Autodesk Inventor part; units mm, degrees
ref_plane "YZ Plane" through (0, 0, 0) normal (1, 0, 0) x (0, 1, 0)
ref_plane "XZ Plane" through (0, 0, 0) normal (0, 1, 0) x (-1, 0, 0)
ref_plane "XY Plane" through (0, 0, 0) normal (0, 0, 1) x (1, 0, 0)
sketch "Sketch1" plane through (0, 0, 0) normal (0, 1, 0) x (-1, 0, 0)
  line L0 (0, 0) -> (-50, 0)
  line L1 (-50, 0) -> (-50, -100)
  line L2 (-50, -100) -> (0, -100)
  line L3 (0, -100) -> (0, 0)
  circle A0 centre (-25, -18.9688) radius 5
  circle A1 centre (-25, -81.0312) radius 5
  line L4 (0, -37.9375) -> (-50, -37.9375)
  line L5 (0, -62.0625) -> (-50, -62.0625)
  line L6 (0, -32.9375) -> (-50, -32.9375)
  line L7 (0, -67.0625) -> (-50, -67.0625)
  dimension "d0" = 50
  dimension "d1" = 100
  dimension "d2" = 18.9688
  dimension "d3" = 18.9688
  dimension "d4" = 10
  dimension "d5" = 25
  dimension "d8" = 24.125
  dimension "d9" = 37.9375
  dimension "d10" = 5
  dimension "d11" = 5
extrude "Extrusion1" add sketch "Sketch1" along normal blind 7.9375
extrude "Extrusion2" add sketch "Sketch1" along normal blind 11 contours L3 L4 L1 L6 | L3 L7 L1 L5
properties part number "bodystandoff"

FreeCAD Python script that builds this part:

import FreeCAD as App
import Part
import Sketcher

V = App.Vector
Q = App.Units.Quantity

doc = App.newDocument("Part")
body = doc.addObject("PartDesign::Body", "Body")

# Sketch on XZ plane
sketch1 = doc.addObject("Sketcher::SketchObject", "Sketch")
body.addObject(sketch1)
sketch1.AttachmentSupport = (doc.XZ_Plane, [""])
sketch1.MapMode = "FlatFace"
sketch1.addGeometry(Part.LineSegment(V(0, 0, 0), V(50, 0, 0)), False)
sketch1.addGeometry(Part.LineSegment(V(50, 0, 0), V(50, -100, 0)), False)
sketch1.addGeometry(Part.LineSegment(V(50, -100, 0), V(0, -100, 0)), False)
sketch1.addGeometry(Part.LineSegment(V(0, -100, 0), V(0, 0, 0)), False)
sketch1.addGeometry(Part.Circle(V(25, -18.9688, 0), V(0, 0, 1), 5), False)
sketch1.addGeometry(Part.Circle(V(25, -81.0312, 0), V(0, 0, 1), 5), False)
sketch1.addConstraint(Sketcher.Constraint("Coincident", 0, 2, 1, 1))
sketch1.addConstraint(Sketcher.Constraint("Coincident", 1, 2, 2, 1))
sketch1.addConstraint(Sketcher.Constraint("Coincident", 2, 2, 3, 1))
sketch1.addConstraint(Sketcher.Constraint("Coincident", 3, 2, 0, 1))
sketch1.addConstraint(Sketcher.Constraint("Horizontal", 0))
sketch1.addConstraint(Sketcher.Constraint("Vertical", 1))
sketch1.addConstraint(Sketcher.Constraint("Horizontal", 2))
sketch1.addConstraint(Sketcher.Constraint("Vertical", 3))
sketch1.addConstraint(Sketcher.Constraint("Coincident", 3, 2, -1, 1))
sketch1.addConstraint(Sketcher.Constraint("Equal", 4, 5))
sketch1.addConstraint(Sketcher.Constraint("Vertical", 4, 3, 5, 3))
sketch1.addConstraint(Sketcher.Constraint("Diameter", 4, Q("10 mm")))
sketch1.addConstraint(Sketcher.Constraint("DistanceX", 0, 1, 0, 2, Q("50 mm")))
sketch1.addConstraint(Sketcher.Constraint("DistanceY", 1, 2, 1, 1, Q("100 mm")))
sketch1.addConstraint(Sketcher.Constraint("DistanceX", -1, 1, 4, 3, Q("25 mm")))
sketch1.addConstraint(Sketcher.Constraint("DistanceY", 4, 3, -1, 1, Q("18.9688 mm")))
sketch1.addConstraint(Sketcher.Constraint("DistanceY", 1, 2, 5, 3, Q("18.9688 mm")))
pad1 = doc.addObject("PartDesign::Pad", "Pad")
body.addObject(pad1)
pad1.Profile = sketch1
pad1.Length = 7.9375
pad1.Reversed = True

# Sketch on XZ plane
sketch2 = doc.addObject("Sketcher::SketchObject", "Sketch001")
body.addObject(sketch2)
sketch2.AttachmentSupport = (doc.XZ_Plane, [""])
sketch2.MapMode = "FlatFace"
sketch2.addGeometry(Part.LineSegment(V(0, -37.9375, 0), V(0, -32.9375, 0)), False)
sketch2.addGeometry(Part.LineSegment(V(0, -32.9375, 0), V(50, -32.9375, 0)), False)
sketch2.addGeometry(Part.LineSegment(V(50, -32.9375, 0), V(50, -37.9375, 0)), False)
sketch2.addGeometry(Part.LineSegment(V(50, -37.9375, 0), V(0, -37.9375, 0)), False)
sketch2.addGeometry(Part.LineSegment(V(0, -67.0625, 0), V(0, -62.0625, 0)), False)
sketch2.addGeometry(Part.LineSegment(V(0, -62.0625, 0), V(50, -62.0625, 0)), False)
sketch2.addGeometry(Part.LineSegment(V(50, -62.0625, 0), V(50, -67.0625, 0)), False)
sketch2.addGeometry(Part.LineSegment(V(50, -67.0625, 0), V(0, -67.0625, 0)), False)
sketch2.addConstraint(Sketcher.Constraint("Coincident", 0, 2, 1, 1))
sketch2.addConstraint(Sketcher.Constraint("Coincident", 1, 2, 2, 1))
sketch2.addConstraint(Sketcher.Constraint("Coincident", 2, 2, 3, 1))
sketch2.addConstraint(Sketcher.Constraint("Coincident", 3, 2, 0, 1))
sketch2.addConstraint(Sketcher.Constraint("Coincident", 4, 2, 5, 1))
sketch2.addConstraint(Sketcher.Constraint("Coincident", 5, 2, 6, 1))
sketch2.addConstraint(Sketcher.Constraint("Coincident", 6, 2, 7, 1))
sketch2.addConstraint(Sketcher.Constraint("Coincident", 7, 2, 4, 1))
sketch2.addConstraint(Sketcher.Constraint("Vertical", 0))
sketch2.addConstraint(Sketcher.Constraint("Horizontal", 1))
sketch2.addConstraint(Sketcher.Constraint("Vertical", 2))
sketch2.addConstraint(Sketcher.Constraint("Horizontal", 3))
sketch2.addConstraint(Sketcher.Constraint("Vertical", 4))
sketch2.addConstraint(Sketcher.Constraint("Horizontal", 5))
sketch2.addConstraint(Sketcher.Constraint("Vertical", 6))
sketch2.addConstraint(Sketcher.Constraint("Horizontal", 7))
sketch2.addConstraint(Sketcher.Constraint("PointOnObject", 0, 2, -2))
sketch2.addConstraint(Sketcher.Constraint("PointOnObject", 4, 2, -2))
sketch2.addConstraint(Sketcher.Constraint("Vertical", 2, 2, 5, 2))
sketch2.addConstraint(Sketcher.Constraint("Equal", 2, 4))
sketch2.addConstraint(Sketcher.Constraint("DistanceX", 1, 1, 1, 2, Q("50 mm")))
sketch2.addConstraint(Sketcher.Constraint("DistanceY", 0, 1, 0, 2, Q("5 mm")))
sketch2.addConstraint(Sketcher.Constraint("DistanceY", 4, 2, 3, 2, Q("24.125 mm")))
sketch2.addConstraint(Sketcher.Constraint("DistanceY", 2, 2, -1, 1, Q("37.9375 mm")))
pad2 = doc.addObject("PartDesign::Pad", "Pad001")
body.addObject(pad2)
pad2.Profile = sketch2
pad2.Length = 11
pad2.Reversed = True

doc.recompute()
